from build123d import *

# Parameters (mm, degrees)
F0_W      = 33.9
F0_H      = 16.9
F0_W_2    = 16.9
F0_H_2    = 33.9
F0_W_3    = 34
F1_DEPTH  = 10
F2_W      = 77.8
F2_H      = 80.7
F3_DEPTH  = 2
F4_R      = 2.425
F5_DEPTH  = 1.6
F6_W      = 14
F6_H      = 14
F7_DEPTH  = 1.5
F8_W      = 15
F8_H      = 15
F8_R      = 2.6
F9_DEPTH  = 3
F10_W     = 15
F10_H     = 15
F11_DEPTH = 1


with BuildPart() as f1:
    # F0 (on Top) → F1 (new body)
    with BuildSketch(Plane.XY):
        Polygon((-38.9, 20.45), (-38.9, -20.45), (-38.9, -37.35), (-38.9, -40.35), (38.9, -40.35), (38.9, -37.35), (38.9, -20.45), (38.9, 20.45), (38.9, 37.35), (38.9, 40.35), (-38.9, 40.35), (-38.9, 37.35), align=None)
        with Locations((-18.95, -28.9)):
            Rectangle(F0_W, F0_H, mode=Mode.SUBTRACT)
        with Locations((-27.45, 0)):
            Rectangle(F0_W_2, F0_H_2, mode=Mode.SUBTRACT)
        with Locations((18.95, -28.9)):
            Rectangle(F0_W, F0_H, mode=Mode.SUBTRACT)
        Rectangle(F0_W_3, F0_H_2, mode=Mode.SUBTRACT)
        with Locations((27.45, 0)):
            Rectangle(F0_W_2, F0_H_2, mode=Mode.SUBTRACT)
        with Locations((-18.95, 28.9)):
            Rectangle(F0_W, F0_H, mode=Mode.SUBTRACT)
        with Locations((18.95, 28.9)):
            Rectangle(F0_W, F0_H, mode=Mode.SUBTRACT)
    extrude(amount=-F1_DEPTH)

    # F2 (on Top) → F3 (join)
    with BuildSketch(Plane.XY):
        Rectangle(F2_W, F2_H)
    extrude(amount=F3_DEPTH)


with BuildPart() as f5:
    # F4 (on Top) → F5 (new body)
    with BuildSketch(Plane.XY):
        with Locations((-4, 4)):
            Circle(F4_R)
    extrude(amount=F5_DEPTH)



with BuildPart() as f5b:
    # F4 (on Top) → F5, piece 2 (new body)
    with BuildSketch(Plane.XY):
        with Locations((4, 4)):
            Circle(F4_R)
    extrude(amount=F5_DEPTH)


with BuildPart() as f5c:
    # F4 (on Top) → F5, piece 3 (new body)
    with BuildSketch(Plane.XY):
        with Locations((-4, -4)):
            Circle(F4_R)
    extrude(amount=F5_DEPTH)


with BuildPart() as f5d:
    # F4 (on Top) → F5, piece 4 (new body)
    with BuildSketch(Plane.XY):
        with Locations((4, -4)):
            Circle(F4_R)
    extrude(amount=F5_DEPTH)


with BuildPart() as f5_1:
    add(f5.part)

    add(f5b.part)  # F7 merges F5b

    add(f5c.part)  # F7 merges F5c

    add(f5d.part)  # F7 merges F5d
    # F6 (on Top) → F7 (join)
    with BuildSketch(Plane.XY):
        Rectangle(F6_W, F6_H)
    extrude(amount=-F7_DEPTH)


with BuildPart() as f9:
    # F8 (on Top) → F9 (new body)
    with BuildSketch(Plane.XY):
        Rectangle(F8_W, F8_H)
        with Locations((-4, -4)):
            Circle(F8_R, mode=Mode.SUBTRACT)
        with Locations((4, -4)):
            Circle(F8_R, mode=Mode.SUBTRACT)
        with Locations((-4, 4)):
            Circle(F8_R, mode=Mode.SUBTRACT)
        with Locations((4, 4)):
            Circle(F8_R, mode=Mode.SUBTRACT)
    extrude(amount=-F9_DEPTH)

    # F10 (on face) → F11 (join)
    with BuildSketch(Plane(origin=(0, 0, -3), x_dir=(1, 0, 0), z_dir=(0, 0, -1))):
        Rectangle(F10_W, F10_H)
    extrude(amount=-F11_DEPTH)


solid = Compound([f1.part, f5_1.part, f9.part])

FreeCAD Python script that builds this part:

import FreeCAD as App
import Part
import Sketcher
from FreeCAD import Vector

doc = App.newDocument("Part")
params = doc.addObject("Spreadsheet::Sheet", "Params")
for row, (alias, value) in enumerate([
    ("sketch1_width", "34 mm"),
    ("sketch1_width2", "77.8 mm"),
    ("sketch1_width3", "33.9 mm"),
    ("sketch1_width4", "16.9 mm"),
    ("sketch1_height", "80.7 mm"),
    ("pad1_length", "10 mm"),
    ("sketch2_width", "77.8 mm"),
    ("sketch2_height", "80.7 mm"),
    ("pad2_length", "2 mm"),
    ("sketch3_diameter", "4.85 mm"),
    ("pad3_length", "1.6 mm"),
    ("sketch4_diameter", "4.85 mm"),
    ("pad4_length", "1.6 mm"),
    ("sketch5_diameter", "4.85 mm"),
    ("pad5_length", "1.6 mm"),
    ("sketch6_diameter", "4.85 mm"),
    ("pad6_length", "1.6 mm"),
    ("sketch7_width", "14 mm"),
    ("pad7_length", "1.5 mm"),
    ("sketch8_diameter", "5.2 mm"),
    ("sketch8_width", "15 mm"),
    ("pad8_length", "3 mm"),
    ("sketch9_width", "15 mm"),
    ("pad9_length", "1 mm"),
], start=1):
    params.set(f"A{row}", alias)
    params.set(f"B{row}", "=" + value)
    params.setAlias(f"B{row}", alias)

body = doc.addObject("PartDesign::Body", "Body")

# Sketch on XY plane
sketch1 = body.newObject("Sketcher::SketchObject", "Sketch")
sketch1.AttachmentSupport = (doc.getObject("XY_Plane"), [""])
sketch1.MapMode = "FlatFace"
sketch1.addGeometry(Part.LineSegment(Vector(-39, -40, 0), Vector(39, -40, 0)), False)
sketch1.addGeometry(Part.LineSegment(Vector(39, -40, 0), Vector(39, 40, 0)), False)
sketch1.addGeometry(Part.LineSegment(Vector(39, 40, 0), Vector(-39, 40, 0)), False)
sketch1.addGeometry(Part.LineSegment(Vector(-39, 40, 0), Vector(-39, -40, 0)), False)
sketch1.addGeometry(Part.LineSegment(Vector(-2, -37, 0), Vector(-36, -37, 0)), False)
sketch1.addGeometry(Part.LineSegment(Vector(-36, -37, 0), Vector(-36, -20, 0)), False)
sketch1.addGeometry(Part.LineSegment(Vector(-36, -20, 0), Vector(-2, -20, 0)), False)
sketch1.addGeometry(Part.LineSegment(Vector(-2, -20, 0), Vector(-2, -37, 0)), False)
sketch1.addGeometry(Part.LineSegment(Vector(36, -37, 0), Vector(2, -37, 0)), False)
sketch1.addGeometry(Part.LineSegment(Vector(2, -37, 0), Vector(2, -20, 0)), False)
sketch1.addGeometry(Part.LineSegment(Vector(2, -20, 0), Vector(36, -20, 0)), False)
sketch1.addGeometry(Part.LineSegment(Vector(36, -20, 0), Vector(36, -37, 0)), False)
sketch1.addGeometry(Part.LineSegment(Vector(-19, -17, 0), Vector(-36, -17, 0)), False)
sketch1.addGeometry(Part.LineSegment(Vector(-36, -17, 0), Vector(-36, 17, 0)), False)
sketch1.addGeometry(Part.LineSegment(Vector(-36, 17, 0), Vector(-19, 17, 0)), False)
sketch1.addGeometry(Part.LineSegment(Vector(-19, 17, 0), Vector(-19, -17, 0)), False)
sketch1.addGeometry(Part.LineSegment(Vector(-2, 20, 0), Vector(-36, 20, 0)), False)
sketch1.addGeometry(Part.LineSegment(Vector(-36, 20, 0), Vector(-36, 37, 0)), False)
sketch1.addGeometry(Part.LineSegment(Vector(-36, 37, 0), Vector(-2, 37, 0)), False)
sketch1.addGeometry(Part.LineSegment(Vector(-2, 37, 0), Vector(-2, 20, 0)), False)
sketch1.addGeometry(Part.LineSegment(Vector(17, -17, 0), Vector(-17, -17, 0)), False)
sketch1.addGeometry(Part.LineSegment(Vector(-17, -17, 0), Vector(-17, 17, 0)), False)
sketch1.addGeometry(Part.LineSegment(Vector(-17, 17, 0), Vector(17, 17, 0)), False)
sketch1.addGeometry(Part.LineSegment(Vector(17, 17, 0), Vector(17, -17, 0)), False)
sketch1.addGeometry(Part.LineSegment(Vector(36, -17, 0), Vector(19, -17, 0)), False)
sketch1.addGeometry(Part.LineSegment(Vector(19, -17, 0), Vector(19, 17, 0)), False)
sketch1.addGeometry(Part.LineSegment(Vector(19, 17, 0), Vector(36, 17, 0)), False)
sketch1.addGeometry(Part.LineSegment(Vector(36, 17, 0), Vector(36, -17, 0)), False)
sketch1.addGeometry(Part.LineSegment(Vector(36, 20, 0), Vector(2, 20, 0)), False)
sketch1.addGeometry(Part.LineSegment(Vector(2, 20, 0), Vector(2, 37, 0)), False)
sketch1.addGeometry(Part.LineSegment(Vector(2, 37, 0), Vector(36, 37, 0)), False)
sketch1.addGeometry(Part.LineSegment(Vector(36, 37, 0), Vector(36, 20, 0)), False)
sketch1.addConstraint(Sketcher.Constraint("Coincident", 0, 2, 1, 1))
sketch1.addConstraint(Sketcher.Constraint("Coincident", 1, 2, 2, 1))
sketch1.addConstraint(Sketcher.Constraint("Coincident", 2, 2, 3, 1))
sketch1.addConstraint(Sketcher.Constraint("Coincident", 3, 2, 0, 1))
sketch1.addConstraint(Sketcher.Constraint("Coincident", 4, 2, 5, 1))
sketch1.addConstraint(Sketcher.Constraint("Coincident", 5, 2, 6, 1))
sketch1.addConstraint(Sketcher.Constraint("Coincident", 6, 2, 7, 1))
sketch1.addConstraint(Sketcher.Constraint("Coincident", 7, 2, 4, 1))
sketch1.addConstraint(Sketcher.Constraint("Coincident", 8, 2, 9, 1))
sketch1.addConstraint(Sketcher.Constraint("Coincident", 9, 2, 10, 1))
sketch1.addConstraint(Sketcher.Constraint("Coincident", 10, 2, 11, 1))
sketch1.addConstraint(Sketcher.Constraint("Coincident", 11, 2, 8, 1))
sketch1.addConstraint(Sketcher.Constraint("Coincident", 12, 2, 13, 1))
sketch1.addConstraint(Sketcher.Constraint("Coincident", 13, 2, 14, 1))
sketch1.addConstraint(Sketcher.Constraint("Coincident", 14, 2, 15, 1))
sketch1.addConstraint(Sketcher.Constraint("Coincident", 15, 2, 12, 1))
sketch1.addConstraint(Sketcher.Constraint("Coincident", 16, 2, 17, 1))
sketch1.addConstraint(Sketcher.Constraint("Coincident", 17, 2, 18, 1))
sketch1.addConstraint(Sketcher.Constraint("Coincident", 18, 2, 19, 1))
sketch1.addConstraint(Sketcher.Constraint("Coincident", 19, 2, 16, 1))
sketch1.addConstraint(Sketcher.Constraint("Coincident", 20, 2, 21, 1))
sketch1.addConstraint(Sketcher.Constraint("Coincident", 21, 2, 22, 1))
sketch1.addConstraint(Sketcher.Constraint("Coincident", 22, 2, 23, 1))
sketch1.addConstraint(Sketcher.Constraint("Coincident", 23, 2, 20, 1))
sketch1.addConstraint(Sketcher.Constraint("Coincident", 24, 2, 25, 1))
sketch1.addConstraint(Sketcher.Constraint("Coincident", 25, 2, 26, 1))
sketch1.addConstraint(Sketcher.Constraint("Coincident", 26, 2, 27, 1))
sketch1.addConstraint(Sketcher.Constraint("Coincident", 27, 2, 24, 1))
sketch1.addConstraint(Sketcher.Constraint("Coincident", 28, 2, 29, 1))
sketch1.addConstraint(Sketcher.Constraint("Coincident", 29, 2, 30, 1))
sketch1.addConstraint(Sketcher.Constraint("Coincident", 30, 2, 31, 1))
sketch1.addConstraint(Sketcher.Constraint("Coincident", 31, 2, 28, 1))
sketch1.addConstraint(Sketcher.Constraint("Horizontal", 0))
sketch1.addConstraint(Sketcher.Constraint("Vertical", 1))
sketch1.addConstraint(Sketcher.Constraint("Horizontal", 2))
sketch1.addConstraint(Sketcher.Constraint("Vertical", 3))
sketch1.addConstraint(Sketcher.Constraint("Horizontal", 4))
sketch1.addConstraint(Sketcher.Constraint("Vertical", 5))
sketch1.addConstraint(Sketcher.Constraint("Horizontal", 6))
sketch1.addConstraint(Sketcher.Constraint("Vertical", 7))
sketch1.addConstraint(Sketcher.Constraint("Horizontal", 8))
sketch1.addConstraint(Sketcher.Constraint("Vertical", 9))
sketch1.addConstraint(Sketcher.Constraint("Horizontal", 10))
sketch1.addConstraint(Sketcher.Constraint("Vertical", 11))
sketch1.addConstraint(Sketcher.Constraint("Horizontal", 12))
sketch1.addConstraint(Sketcher.Constraint("Vertical", 13))
sketch1.addConstraint(Sketcher.Constraint("Horizontal", 14))
sketch1.addConstraint(Sketcher.Constraint("Vertical", 15))
sketch1.addConstraint(Sketcher.Constraint("Horizontal", 16))
sketch1.addConstraint(Sketcher.Constraint("Vertical", 17))
sketch1.addConstraint(Sketcher.Constraint("Horizontal", 18))
sketch1.addConstraint(Sketcher.Constraint("Vertical", 19))
sketch1.addConstraint(Sketcher.Constraint("Horizontal", 20))
sketch1.addConstraint(Sketcher.Constraint("Vertical", 21))
sketch1.addConstraint(Sketcher.Constraint("Horizontal", 22))
sketch1.addConstraint(Sketcher.Constraint("Vertical", 23))
sketch1.addConstraint(Sketcher.Constraint("Horizontal", 24))
sketch1.addConstraint(Sketcher.Constraint("Vertical", 25))
sketch1.addConstraint(Sketcher.Constraint("Horizontal", 26))
sketch1.addConstraint(Sketcher.Constraint("Vertical", 27))
sketch1.addConstraint(Sketcher.Constraint("Horizontal", 28))
sketch1.addConstraint(Sketcher.Constraint("Vertical", 29))
sketch1.addConstraint(Sketcher.Constraint("Horizontal", 30))
sketch1.addConstraint(Sketcher.Constraint("Vertical", 31))
sketch1.addConstraint(Sketcher.Constraint("Symmetric", 0, 2, 2, 2, -1, 1))
sketch1.addConstraint(Sketcher.Constraint("Symmetric", 10, 2, 16, 2, -1, 1))
sketch1.addConstraint(Sketcher.Constraint("Symmetric", 8, 2, 18, 2, -1, 1))
sketch1.addConstraint(Sketcher.Constraint("Symmetric", 20, 2, 22, 2, -1, 1))
sketch1.addConstraint(Sketcher.Constraint("Symmetric", 14, 2, 24, 2, -1, 1))
sketch1.addConstraint(Sketcher.Constraint("Symmetric", 12, 2, 26, 2, -1, 1))
sketch1.addConstraint(Sketcher.Constraint("Symmetric", 6, 2, 28, 2, -1, 1))
sketch1.addConstraint(Sketcher.Constraint("Symmetric", 4, 2, 30, 2, -1, 1))
sketch1.addConstraint(Sketcher.Constraint("Symmetric", 7, 2, 8, 2, -2))
sketch1.addConstraint(Sketcher.Constraint("Symmetric", 5, 2, 10, 2, -2))
sketch1.addConstraint(Sketcher.Constraint("Horizontal", 15, 2, 20, 2))
sketch1.addConstraint(Sketcher.Constraint("Horizontal", 14, 2, 21, 2))
sketch1.addConstraint(Sketcher.Constraint("Vertical", 5, 2, 12, 2))
sketch1.addConstraint(Sketcher.Constraint("Equal", 26, 5))
sketch1.addConstraint(Sketcher.Constraint("Equal", 30, 13))
sketch1.addConstraint(Sketcher.Constraint("DistanceX", 20, 2, 20, 1, 34.0))
sketch1.addConstraint(Sketcher.Constraint("DistanceX", 0, 1, 0, 2, 77.8))
sketch1.addConstraint(Sketcher.Constraint("DistanceX", 4, 2, 4, 1, 33.9))
sketch1.addConstraint(Sketcher.Constraint("DistanceX", 12, 2, 12, 1, 16.9))
sketch1.addConstraint(Sketcher.Constraint("DistanceY", 1, 1, 1, 2, 80.7))
sketch1.addConstraint(Sketcher.Constraint("DistanceX", 6, 2, -1, 1, 2.0))
sketch1.addConstraint(Sketcher.Constraint("DistanceY", 3, 2, 4, 2, 3.0))
sketch1.setExpression("Constraints[79]", "Params.sketch1_width")
sketch1.setExpression("Constraints[80]", "Params.sketch1_width2")
sketch1.setExpression("Constraints[81]", "Params.sketch1_width3")
sketch1.setExpression("Constraints[82]", "Params.sketch1_width4")
sketch1.setExpression("Constraints[83]", "Params.sketch1_height")
pad1 = body.newObject("PartDesign::Pad", "Pad")
pad1.Profile = sketch1
pad1.setExpression("Length", "Params.pad1_length")
pad1.Reversed = True

# Sketch on XY plane
sketch2 = body.newObject("Sketcher::SketchObject", "Sketch001")
sketch2.AttachmentSupport = (doc.getObject("XY_Plane"), [""])
sketch2.MapMode = "FlatFace"
sketch2.addGeometry(Part.LineSegment(Vector(-39, 40, 0), Vector(-39, -40, 0)), False)
sketch2.addGeometry(Part.LineSegment(Vector(-39, -40, 0), Vector(39, -40, 0)), False)
sketch2.addGeometry(Part.LineSegment(Vector(39, -40, 0), Vector(39, 40, 0)), False)
sketch2.addGeometry(Part.LineSegment(Vector(39, 40, 0), Vector(-39, 40, 0)), False)
sketch2.addConstraint(Sketcher.Constraint("Coincident", 0, 2, 1, 1))
sketch2.addConstraint(Sketcher.Constraint("Coincident", 1, 2, 2, 1))
sketch2.addConstraint(Sketcher.Constraint("Coincident", 2, 2, 3, 1))
sketch2.addConstraint(Sketcher.Constraint("Coincident", 3, 2, 0, 1))
sketch2.addConstraint(Sketcher.Constraint("Vertical", 0))
sketch2.addConstraint(Sketcher.Constraint("Horizontal", 1))
sketch2.addConstraint(Sketcher.Constraint("Vertical", 2))
sketch2.addConstraint(Sketcher.Constraint("Horizontal", 3))
sketch2.addConstraint(Sketcher.Constraint("Symmetric", 0, 2, 2, 2, -1, 1))
sketch2.addConstraint(Sketcher.Constraint("DistanceX", 1, 1, 1, 2, 77.8))
sketch2.addConstraint(Sketcher.Constraint("DistanceY", 0, 2, 0, 1, 80.7))
sketch2.setExpression("Constraints[9]", "Params.sketch2_width")
sketch2.setExpression("Constraints[10]", "Params.sketch2_height")
pad2 = body.newObject("PartDesign::Pad", "Pad001")
pad2.Profile = sketch2
pad2.setExpression("Length", "Params.pad2_length")
body2 = doc.addObject("PartDesign::Body", "Body001")

# Sketch on XY plane
sketch3 = body2.newObject("Sketcher::SketchObject", "Sketch002")
sketch3.AttachmentSupport = (doc.getObject("XY_Plane001"), [""])
sketch3.MapMode = "FlatFace"
sketch3.addGeometry(Part.Circle(Vector(-4, 4, 0), Vector(0, 0, 1), 2.4), False)
sketch3.addConstraint(Sketcher.Constraint("Diameter", 0, 4.85))
sketch3.addConstraint(Sketcher.Constraint("DistanceX", 0, 3, -1, 1, 4.0))
sketch3.addConstraint(Sketcher.Constraint("DistanceY", -1, 1, 0, 3, 4.0))
sketch3.setExpression("Constraints[0]", "Params.sketch3_diameter")
pad3 = body2.newObject("PartDesign::Pad", "Pad002")
pad3.Profile = sketch3
pad3.setExpression("Length", "Params.pad3_length")
body3 = doc.addObject("PartDesign::Body", "Body002")

# Sketch on XY plane
sketch4 = body3.newObject("Sketcher::SketchObject", "Sketch003")
sketch4.AttachmentSupport = (doc.getObject("XY_Plane002"), [""])
sketch4.MapMode = "FlatFace"
sketch4.addGeometry(Part.Circle(Vector(4, 4, 0), Vector(0, 0, 1), 2.4), False)
sketch4.addConstraint(Sketcher.Constraint("Diameter", 0, 4.85))
sketch4.addConstraint(Sketcher.Constraint("DistanceX", -1, 1, 0, 3, 4.0))
sketch4.addConstraint(Sketcher.Constraint("DistanceY", -1, 1, 0, 3, 4.0))
sketch4.setExpression("Constraints[0]", "Params.sketch4_diameter")
pad4 = body3.newObject("PartDesign::Pad", "Pad003")
pad4.Profile = sketch4
pad4.setExpression("Length", "Params.pad4_length")
body4 = doc.addObject("PartDesign::Body", "Body003")

# Sketch on XY plane
sketch5 = body4.newObject("Sketcher::SketchObject", "Sketch004")
sketch5.AttachmentSupport = (doc.getObject("XY_Plane003"), [""])
sketch5.MapMode = "FlatFace"
sketch5.addGeometry(Part.Circle(Vector(-4, -4, 0), Vector(0, 0, 1), 2.4), False)
sketch5.addConstraint(Sketcher.Constraint("Diameter", 0, 4.85))
sketch5.addConstraint(Sketcher.Constraint("DistanceX", 0, 3, -1, 1, 4.0))
sketch5.addConstraint(Sketcher.Constraint("DistanceY", 0, 3, -1, 1, 4.0))
sketch5.setExpression("Constraints[0]", "Params.sketch5_diameter")
pad5 = body4.newObject("PartDesign::Pad", "Pad004")
pad5.Profile = sketch5
pad5.setExpression("Length", "Params.pad5_length")
body5 = doc.addObject("PartDesign::Body", "Body004")

# Sketch on XY plane
sketch6 = body5.newObject("Sketcher::SketchObject", "Sketch005")
sketch6.AttachmentSupport = (doc.getObject("XY_Plane004"), [""])
sketch6.MapMode = "FlatFace"
sketch6.addGeometry(Part.Circle(Vector(4, -4, 0), Vector(0, 0, 1), 2.4), False)
sketch6.addConstraint(Sketcher.Constraint("Diameter", 0, 4.85))
sketch6.addConstraint(Sketcher.Constraint("DistanceX", -1, 1, 0, 3, 4.0))
sketch6.addConstraint(Sketcher.Constraint("DistanceY", 0, 3, -1, 1, 4.0))
sketch6.setExpression("Constraints[0]", "Params.sketch6_diameter")
pad6 = body5.newObject("PartDesign::Pad", "Pad005")
pad6.Profile = sketch6
pad6.setExpression("Length", "Params.pad6_length")
body2.AllowCompound = True
doc.recompute()

boolean = body2.newObject("PartDesign::Boolean", "Boolean")
boolean.Type = "Fuse"
boolean.addObjects([body3])
doc.recompute()

boolean2 = body2.newObject("PartDesign::Boolean", "Boolean001")
boolean2.Type = "Fuse"
boolean2.addObjects([body4])
doc.recompute()

boolean3 = body2.newObject("PartDesign::Boolean", "Boolean002")
boolean3.Type = "Fuse"
boolean3.addObjects([body5])

# Sketch on XY plane
sketch7 = body2.newObject("Sketcher::SketchObject", "Sketch006")
sketch7.AttachmentSupport = (doc.getObject("XY_Plane001"), [""])
sketch7.MapMode = "FlatFace"
sketch7.addGeometry(Part.LineSegment(Vector(-7, 7, 0), Vector(-7, -7, 0)), False)
sketch7.addGeometry(Part.LineSegment(Vector(-7, -7, 0), Vector(7, -7, 0)), False)
sketch7.addGeometry(Part.LineSegment(Vector(7, -7, 0), Vector(7, 7, 0)), False)
sketch7.addGeometry(Part.LineSegment(Vector(7, 7, 0), Vector(-7, 7, 0)), False)
sketch7.addConstraint(Sketcher.Constraint("Coincident", 0, 2, 1, 1))
sketch7.addConstraint(Sketcher.Constraint("Coincident", 1, 2, 2, 1))
sketch7.addConstraint(Sketcher.Constraint("Coincident", 2, 2, 3, 1))
sketch7.addConstraint(Sketcher.Constraint("Coincident", 3, 2, 0, 1))
sketch7.addConstraint(Sketcher.Constraint("Vertical", 0))
sketch7.addConstraint(Sketcher.Constraint("Horizontal", 1))
sketch7.addConstraint(Sketcher.Constraint("Vertical", 2))
sketch7.addConstraint(Sketcher.Constraint("Horizontal", 3))
sketch7.addConstraint(Sketcher.Constraint("Symmetric", 0, 2, 2, 2, -1, 1))
sketch7.addConstraint(Sketcher.Constraint("Equal", 3, 0))
sketch7.addConstraint(Sketcher.Constraint("DistanceX", 1, 1, 1, 2, 14.0))
sketch7.setExpression("Constraints[10]", "Params.sketch7_width")
pad7 = body2.newObject("PartDesign::Pad", "Pad006")
pad7.Profile = sketch7
pad7.setExpression("Length", "Params.pad7_length")
pad7.Reversed = True
body6 = doc.addObject("PartDesign::Body", "Body005")

# Sketch on XY plane
sketch8 = body6.newObject("Sketcher::SketchObject", "Sketch007")
sketch8.AttachmentSupport = (doc.getObject("XY_Plane005"), [""])
sketch8.MapMode = "FlatFace"
sketch8.addGeometry(Part.LineSegment(Vector(-7.5, 7.5, 0), Vector(-7.5, -7.5, 0)), False)
sketch8.addGeometry(Part.LineSegment(Vector(-7.5, -7.5, 0), Vector(7.5, -7.5, 0)), False)
sketch8.addGeometry(Part.LineSegment(Vector(7.5, -7.5, 0), Vector(7.5, 7.5, 0)), False)
sketch8.addGeometry(Part.LineSegment(Vector(7.5, 7.5, 0), Vector(-7.5, 7.5, 0)), False)
sketch8.addGeometry(Part.Circle(Vector(-4, -4, 0), Vector(0, 0, 1), 2.6), False)
sketch8.addGeometry(Part.Circle(Vector(4, -4, 0), Vector(0, 0, 1), 2.6), False)
sketch8.addGeometry(Part.Circle(Vector(-4, 4, 0), Vector(0, 0, 1), 2.6), False)
sketch8.addGeometry(Part.Circle(Vector(4, 4, 0), Vector(0, 0, 1), 2.6), False)
sketch8.addConstraint(Sketcher.Constraint("Coincident", 0, 2, 1, 1))
sketch8.addConstraint(Sketcher.Constraint("Coincident", 1, 2, 2, 1))
sketch8.addConstraint(Sketcher.Constraint("Coincident", 2, 2, 3, 1))
sketch8.addConstraint(Sketcher.Constraint("Coincident", 3, 2, 0, 1))
sketch8.addConstraint(Sketcher.Constraint("Vertical", 0))
sketch8.addConstraint(Sketcher.Constraint("Horizontal", 1))
sketch8.addConstraint(Sketcher.Constraint("Vertical", 2))
sketch8.addConstraint(Sketcher.Constraint("Horizontal", 3))
sketch8.addConstraint(Sketcher.Constraint("Equal", 4, 5))
sketch8.addConstraint(Sketcher.Constraint("Equal", 5, 6))
sketch8.addConstraint(Sketcher.Constraint("Equal", 6, 7))
sketch8.addConstraint(Sketcher.Constraint("Symmetric", 5, 3, 6, 3, -1, 1))
sketch8.addConstraint(Sketcher.Constraint("Symmetric", 4, 3, 7, 3, -1, 1))
sketch8.addConstraint(Sketcher.Constraint("Symmetric", 0, 2, 2, 2, -1, 1))
sketch8.addConstraint(Sketcher.Constraint("Symmetric", 4, 3, 5, 3, -2))
sketch8.addConstraint(Sketcher.Constraint("Equal", 3, 0))
sketch8.addConstraint(Sketcher.Constraint("Diameter", 4, 5.2))
sketch8.addConstraint(Sketcher.Constraint("DistanceX", 1, 1, 1, 2, 15.0))
sketch8.addConstraint(Sketcher.Constraint("DistanceX", 4, 3, -1, 1, 4.0))
sketch8.addConstraint(Sketcher.Constraint("DistanceY", 4, 3, -1, 1, 4.0))
sketch8.setExpression("Constraints[16]", "Params.sketch8_diameter")
sketch8.setExpression("Constraints[17]", "Params.sketch8_width")
pad8 = body6.newObject("PartDesign::Pad", "Pad007")
pad8.Profile = sketch8
pad8.setExpression("Length", "Params.pad8_length")
pad8.Reversed = True

# Sketch on XY plane
sketch9 = body6.newObject("Sketcher::SketchObject", "Sketch008")
sketch9.AttachmentSupport = (doc.getObject("XY_Plane005"), [""])
sketch9.MapMode = "FlatFace"
sketch9.AttachmentOffset = App.Placement(Vector(0, 0, -3), App.Rotation())
sketch9.addGeometry(Part.LineSegment(Vector(-8, -8, 0), Vector(-8, 8, 0)), False)
sketch9.addGeometry(Part.LineSegment(Vector(-8, 8, 0), Vector(8, 8, 0)), False)
sketch9.addGeometry(Part.LineSegment(Vector(8, 8, 0), Vector(8, -8, 0)), False)
sketch9.addGeometry(Part.LineSegment(Vector(8, -8, 0), Vector(-8, -8, 0)), False)
sketch9.addConstraint(Sketcher.Constraint("Coincident", 0, 2, 1, 1))
sketch9.addConstraint(Sketcher.Constraint("Coincident", 1, 2, 2, 1))
sketch9.addConstraint(Sketcher.Constraint("Coincident", 2, 2, 3, 1))
sketch9.addConstraint(Sketcher.Constraint("Coincident", 3, 2, 0, 1))
sketch9.addConstraint(Sketcher.Constraint("Vertical", 0))
sketch9.addConstraint(Sketcher.Constraint("Horizontal", 1))
sketch9.addConstraint(Sketcher.Constraint("Vertical", 2))
sketch9.addConstraint(Sketcher.Constraint("Horizontal", 3))
sketch9.addConstraint(Sketcher.Constraint("Symmetric", 0, 2, 2, 2, -1, 1))
sketch9.addConstraint(Sketcher.Constraint("Equal", 3, 0))
sketch9.addConstraint(Sketcher.Constraint("DistanceX", 1, 1, 1, 2, 15.0))
sketch9.setExpression("Constraints[10]", "Params.sketch9_width")
pad9 = body6.newObject("PartDesign::Pad", "Pad008")
pad9.Profile = sketch9
pad9.setExpression("Length", "Params.pad9_length")

doc.recompute()
